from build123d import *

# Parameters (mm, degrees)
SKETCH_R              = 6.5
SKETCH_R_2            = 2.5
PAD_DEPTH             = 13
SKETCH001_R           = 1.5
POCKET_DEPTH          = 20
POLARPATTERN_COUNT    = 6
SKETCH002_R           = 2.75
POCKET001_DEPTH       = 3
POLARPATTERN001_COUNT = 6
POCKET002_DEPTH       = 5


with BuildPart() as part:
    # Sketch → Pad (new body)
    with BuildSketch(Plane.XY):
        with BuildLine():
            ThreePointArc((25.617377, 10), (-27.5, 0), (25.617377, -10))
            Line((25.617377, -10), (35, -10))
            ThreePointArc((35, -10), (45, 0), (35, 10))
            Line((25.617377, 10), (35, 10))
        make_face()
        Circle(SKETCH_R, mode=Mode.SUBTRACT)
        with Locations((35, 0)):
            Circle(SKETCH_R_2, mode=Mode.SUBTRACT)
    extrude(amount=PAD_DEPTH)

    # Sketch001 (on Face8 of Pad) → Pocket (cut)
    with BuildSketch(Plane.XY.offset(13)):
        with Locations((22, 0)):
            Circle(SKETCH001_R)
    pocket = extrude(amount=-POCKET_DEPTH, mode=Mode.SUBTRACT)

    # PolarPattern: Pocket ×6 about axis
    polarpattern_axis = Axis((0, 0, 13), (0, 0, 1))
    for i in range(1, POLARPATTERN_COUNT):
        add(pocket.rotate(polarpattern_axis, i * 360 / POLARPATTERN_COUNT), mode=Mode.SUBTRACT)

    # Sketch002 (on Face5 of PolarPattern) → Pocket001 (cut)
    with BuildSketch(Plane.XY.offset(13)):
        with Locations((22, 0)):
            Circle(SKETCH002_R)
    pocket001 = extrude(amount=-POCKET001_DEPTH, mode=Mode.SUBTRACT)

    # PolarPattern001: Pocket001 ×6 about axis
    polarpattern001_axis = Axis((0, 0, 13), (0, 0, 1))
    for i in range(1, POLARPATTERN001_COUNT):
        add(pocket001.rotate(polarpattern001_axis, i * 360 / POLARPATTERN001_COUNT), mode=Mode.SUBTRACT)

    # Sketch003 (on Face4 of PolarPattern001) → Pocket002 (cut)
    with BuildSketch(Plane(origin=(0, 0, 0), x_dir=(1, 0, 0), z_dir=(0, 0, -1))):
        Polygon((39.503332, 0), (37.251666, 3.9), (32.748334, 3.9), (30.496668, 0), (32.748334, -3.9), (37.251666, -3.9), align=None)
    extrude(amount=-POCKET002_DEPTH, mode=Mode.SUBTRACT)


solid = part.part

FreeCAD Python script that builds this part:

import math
import FreeCAD as App
import Part
import Sketcher

V = App.Vector
Q = App.Units.Quantity

doc = App.newDocument("Part")
params = doc.addObject("Spreadsheet::Sheet", "Params")
for row, (alias, value) in enumerate([
    ("sketch1_diameter", "13 mm"),
    ("sketch1_diameter2", "5 mm"),
    ("sketch1_radius", "10 mm"),
    ("sketch1_radius2", "27.5 mm"),
    ("pad1_length", "13 mm"),
    ("sketch2_diameter", "3 mm"),
    ("pocket1_length", "20 mm"),
    ("sketch3_diameter", "5.5 mm"),
    ("pocket2_length", "3 mm"),
    ("pocket3_length", "5 mm"),
], start=1):
    params.set(f"A{row}", alias)
    params.set(f"B{row}", "=" + value)
    params.setAlias(f"B{row}", alias)

body = doc.addObject("PartDesign::Body", "Body")

# Sketch on XY plane
sketch1 = body.newObject("Sketcher::SketchObject", "Sketch")
sketch1.AttachmentSupport = (doc.getObject("XY_Plane"), [""])
sketch1.MapMode = "FlatFace"
sketch1.addGeometry([
    Part.ArcOfCircle(Part.Circle(V(0, 0, 0), V(0, 0, 1), 27.5), math.radians(21), math.radians(339)),  # 0
    Part.LineSegment(V(25.6, -10, 0), V(35, -10, 0)),  # 1
    Part.ArcOfCircle(Part.Circle(V(35, 0, 0), V(0, 0, 1), 10), math.radians(-90), math.radians(90)),  # 2
    Part.LineSegment(V(35, 10, 0), V(25.6, 10, 0)),  # 3
    Part.Circle(V(0, 0, 0), V(0, 0, 1), 6.5),  # 4
    Part.Circle(V(35, 0, 0), V(0, 0, 1), 2.5),  # 5
], False)
sketch1.addConstraint([
    Sketcher.Constraint("Coincident", 0, 2, 1, 1),
    Sketcher.Constraint("Tangent", 1, 2, 2, 1),
    Sketcher.Constraint("Tangent", 2, 2, 3, 1),
    Sketcher.Constraint("Coincident", 3, 2, 0, 1),
    Sketcher.Constraint("Horizontal", 1),
    Sketcher.Constraint("Horizontal", 3),
    Sketcher.Constraint("Coincident", 0, 3, -1, 1),
    Sketcher.Constraint("Coincident", 4, 3, -1, 1),
    Sketcher.Constraint("Coincident", 5, 3, 2, 3),
    Sketcher.Constraint("PointOnObject", 2, 3, -1),
    Sketcher.Constraint("Diameter", 4, Q("13 mm")),
    Sketcher.Constraint("Diameter", 5, Q("5 mm")),
    Sketcher.Constraint("Radius", 2, Q("10 mm")),
    Sketcher.Constraint("Radius", 0, Q("27.5 mm")),
    Sketcher.Constraint("DistanceX", -1, 1, 2, 3, Q("35 mm")),
])
sketch1.setExpression("Constraints[10]", "Params.sketch1_diameter")
sketch1.setExpression("Constraints[11]", "Params.sketch1_diameter2")
sketch1.setExpression("Constraints[12]", "Params.sketch1_radius")
sketch1.setExpression("Constraints[13]", "Params.sketch1_radius2")
pad1 = body.newObject("PartDesign::Pad", "Pad")
pad1.Profile = sketch1
pad1.setExpression("Length", "Params.pad1_length")

# Sketch on XY plane
sketch2 = body.newObject("Sketcher::SketchObject", "Sketch001")
sketch2.AttachmentSupport = (doc.getObject("XY_Plane"), [""])
sketch2.MapMode = "FlatFace"
sketch2.AttachmentOffset = App.Placement(V(0, 0, 13), App.Rotation())
sketch2.addGeometry(Part.Circle(V(22, 0, 0), V(0, 0, 1), 1.5), False)
sketch2.addConstraint([
    Sketcher.Constraint("PointOnObject", 0, 3, -1),
    Sketcher.Constraint("Diameter", 0, Q("3 mm")),
    Sketcher.Constraint("DistanceX", -1, 1, 0, 3, Q("22 mm")),
])
sketch2.setExpression("Constraints[1]", "Params.sketch2_diameter")
pocket1 = body.newObject("PartDesign::Pocket", "Pocket")
pocket1.Profile = sketch2
pocket1.setExpression("Length", "Params.pocket1_length")
doc.recompute()

polarpattern = body.newObject("PartDesign::PolarPattern", "PolarPattern")
polarpattern.Originals = [pocket1]
polarpattern.Axis = (doc.getObject("Z_Axis"), [""])
polarpattern.Angle = 360
polarpattern.Occurrences = 6
body.Tip = polarpattern

# Sketch on XY plane
sketch3 = body.newObject("Sketcher::SketchObject", "Sketch002")
sketch3.AttachmentSupport = (doc.getObject("XY_Plane"), [""])
sketch3.MapMode = "FlatFace"
sketch3.AttachmentOffset = App.Placement(V(0, 0, 13), App.Rotation())
sketch3.addGeometry(Part.Circle(V(22, 0, 0), V(0, 0, 1), 2.8), False)
sketch3.addConstraint([
    Sketcher.Constraint("PointOnObject", 0, 3, -1),
    Sketcher.Constraint("Diameter", 0, Q("5.5 mm")),
    Sketcher.Constraint("DistanceX", -1, 1, 0, 3, Q("22 mm")),
])
sketch3.setExpression("Constraints[1]", "Params.sketch3_diameter")
pocket2 = body.newObject("PartDesign::Pocket", "Pocket001")
pocket2.Profile = sketch3
pocket2.setExpression("Length", "Params.pocket2_length")
doc.recompute()

polarpattern2 = body.newObject("PartDesign::PolarPattern", "PolarPattern001")
polarpattern2.Originals = [pocket2]
polarpattern2.Axis = (doc.getObject("Z_Axis"), [""])
polarpattern2.Angle = 360
polarpattern2.Occurrences = 6
body.Tip = polarpattern2

# Sketch on XY plane
sketch4 = body.newObject("Sketcher::SketchObject", "Sketch003")
sketch4.AttachmentSupport = (doc.getObject("XY_Plane"), [""])
sketch4.MapMode = "FlatFace"
sketch4.addGeometry([
    Part.LineSegment(V(39.5, 0, 0), V(37.3, -3.9, 0)),  # 0
    Part.LineSegment(V(37.3, -3.9, 0), V(32.7, -3.9, 0)),  # 1
    Part.LineSegment(V(32.7, -3.9, 0), V(30.5, 0, 0)),  # 2
    Part.LineSegment(V(30.5, 0, 0), V(32.7, 3.9, 0)),  # 3
    Part.LineSegment(V(32.7, 3.9, 0), V(37.3, 3.9, 0)),  # 4
    Part.LineSegment(V(37.3, 3.9, 0), V(39.5, 0, 0)),  # 5
], False)
sketch4.addConstraint([
    Sketcher.Constraint("Coincident", 0, 2, 1, 1),
    Sketcher.Constraint("Coincident", 1, 2, 2, 1),
    Sketcher.Constraint("Coincident", 2, 2, 3, 1),
    Sketcher.Constraint("Coincident", 3, 2, 4, 1),
    Sketcher.Constraint("Coincident", 4, 2, 5, 1),
    Sketcher.Constraint("Coincident", 5, 2, 0, 1),
    Sketcher.Constraint("Horizontal", 1),
    Sketcher.Constraint("Horizontal", 4),
    Sketcher.Constraint("Symmetric", 1, 2, 3, 2, -1),
    Sketcher.Constraint("PointOnObject", 2, 2, -1),
    Sketcher.Constraint("PointOnObject", 5, 2, -1),
    Sketcher.Constraint("Parallel", 0, 3),
    Sketcher.Constraint("Parallel", 2, 5),
    Sketcher.Constraint("Angle", 0, Q("-119.999999 deg")),
    Sketcher.Constraint("DistanceY", 0, 2, -1, 1, Q("3.9 mm")),
    Sketcher.Constraint("DistanceX", 2, 2, 0, 2, Q("6.754998 mm")),
    Sketcher.Constraint("DistanceX", -1, 1, 0, 2, Q("37.251666 mm")),
])
pocket3 = body.newObject("PartDesign::Pocket", "Pocket002")
pocket3.Profile = sketch4
pocket3.setExpression("Length", "Params.pocket3_length")
pocket3.Reversed = True

doc.recompute()
